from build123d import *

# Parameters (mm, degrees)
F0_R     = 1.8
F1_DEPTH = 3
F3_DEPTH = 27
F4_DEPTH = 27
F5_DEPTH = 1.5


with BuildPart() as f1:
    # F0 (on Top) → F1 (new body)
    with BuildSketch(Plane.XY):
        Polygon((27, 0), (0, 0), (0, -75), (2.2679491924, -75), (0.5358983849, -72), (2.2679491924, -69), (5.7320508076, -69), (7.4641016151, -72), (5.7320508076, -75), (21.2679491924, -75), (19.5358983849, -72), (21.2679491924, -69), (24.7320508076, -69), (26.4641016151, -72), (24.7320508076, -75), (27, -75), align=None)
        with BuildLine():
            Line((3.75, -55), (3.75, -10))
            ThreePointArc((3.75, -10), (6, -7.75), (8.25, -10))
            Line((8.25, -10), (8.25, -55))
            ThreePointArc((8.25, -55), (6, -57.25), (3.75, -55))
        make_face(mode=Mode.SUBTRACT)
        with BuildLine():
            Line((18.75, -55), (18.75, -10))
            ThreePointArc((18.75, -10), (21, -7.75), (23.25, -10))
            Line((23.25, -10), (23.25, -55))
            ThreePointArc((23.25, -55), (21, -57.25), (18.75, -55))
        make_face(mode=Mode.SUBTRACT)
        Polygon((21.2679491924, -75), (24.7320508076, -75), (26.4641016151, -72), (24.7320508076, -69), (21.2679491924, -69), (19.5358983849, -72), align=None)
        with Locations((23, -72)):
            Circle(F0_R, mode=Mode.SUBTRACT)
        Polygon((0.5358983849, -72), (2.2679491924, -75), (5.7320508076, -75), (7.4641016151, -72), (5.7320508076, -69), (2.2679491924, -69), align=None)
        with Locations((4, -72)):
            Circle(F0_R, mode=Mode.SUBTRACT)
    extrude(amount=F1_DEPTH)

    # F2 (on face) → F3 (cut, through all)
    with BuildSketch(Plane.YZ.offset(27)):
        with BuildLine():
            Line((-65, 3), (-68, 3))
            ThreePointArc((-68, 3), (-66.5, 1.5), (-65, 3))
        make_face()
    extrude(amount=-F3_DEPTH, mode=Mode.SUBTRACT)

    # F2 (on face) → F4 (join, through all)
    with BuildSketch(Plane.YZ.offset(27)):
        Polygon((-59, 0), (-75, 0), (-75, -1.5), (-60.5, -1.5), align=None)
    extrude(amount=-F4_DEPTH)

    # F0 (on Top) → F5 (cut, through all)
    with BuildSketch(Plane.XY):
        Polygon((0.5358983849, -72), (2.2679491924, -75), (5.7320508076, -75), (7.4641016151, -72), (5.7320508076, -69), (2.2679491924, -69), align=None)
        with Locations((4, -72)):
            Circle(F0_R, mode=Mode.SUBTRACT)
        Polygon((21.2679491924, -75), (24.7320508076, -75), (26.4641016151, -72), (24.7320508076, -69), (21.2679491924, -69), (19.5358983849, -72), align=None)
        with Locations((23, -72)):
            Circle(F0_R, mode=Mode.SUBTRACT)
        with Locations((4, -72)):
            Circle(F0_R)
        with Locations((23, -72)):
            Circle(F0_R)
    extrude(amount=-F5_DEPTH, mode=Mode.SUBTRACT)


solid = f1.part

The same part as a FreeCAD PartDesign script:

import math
import FreeCAD as App
import Part
import Sketcher
from FreeCAD import Vector
Q = App.Units.Quantity


def add_polygon(sketch, points):
    """Adds a closed chain of lines whose ends are joined by coincident constraints."""
    first, n = sketch.GeometryCount, len(points)
    for a, b in zip(points, points[1:] + points[:1]):
        sketch.addGeometry(Part.LineSegment(App.Vector(*a, 0), App.Vector(*b, 0)), False)
    for i in range(n):
        sketch.addConstraint(Sketcher.Constraint("Coincident", first + i, 2, first + (i + 1) % n, 1))

doc = App.newDocument("Part")
body = doc.addObject("PartDesign::Body", "Body")

sketch1 = doc.addObject("Sketcher::SketchObject", "Sketch")
body.addObject(sketch1)
sketch1.AttachmentSupport = (doc.XY_Plane, [""])
sketch1.MapMode = "FlatFace"
add_polygon(sketch1, [(27, 0), (0, 0), (0, -75), (27, -75)])
sketch1.addGeometry(Part.Circle(Vector(4, -72, 0), Vector(0, 0, 1), 1.8), False)
sketch1.addGeometry(Part.Circle(Vector(23, -72, 0), Vector(0, 0, 1), 1.8), False)
sketch1.addGeometry(Part.ArcOfCircle(Part.Circle(Vector(6, -55, 0), Vector(0, 0, 1), 2.25), math.radians(180), math.radians(360)), False)
sketch1.addGeometry(Part.LineSegment(Vector(3.75, -55, 0), Vector(3.75, -10, 0)), False)
sketch1.addGeometry(Part.ArcOfCircle(Part.Circle(Vector(6, -10, 0), Vector(0, 0, 1), 2.25), math.radians(0), math.radians(180)), False)
sketch1.addGeometry(Part.LineSegment(Vector(8.25, -10, 0), Vector(8.25, -55, 0)), False)
sketch1.addGeometry(Part.ArcOfCircle(Part.Circle(Vector(21, -55, 0), Vector(0, 0, 1), 2.25), math.radians(180), math.radians(360)), False)
sketch1.addGeometry(Part.LineSegment(Vector(18.75, -55, 0), Vector(18.75, -10, 0)), False)
sketch1.addGeometry(Part.ArcOfCircle(Part.Circle(Vector(21, -10, 0), Vector(0, 0, 1), 2.25), math.radians(0), math.radians(180)), False)
sketch1.addGeometry(Part.LineSegment(Vector(23.25, -10, 0), Vector(23.25, -55, 0)), False)
sketch1.addConstraint(Sketcher.Constraint("Tangent", 6, 1, 7, 1))
sketch1.addConstraint(Sketcher.Constraint("Tangent", 7, 2, 8, 2))
sketch1.addConstraint(Sketcher.Constraint("Tangent", 8, 1, 9, 1))
sketch1.addConstraint(Sketcher.Constraint("Tangent", 9, 2, 6, 2))
sketch1.addConstraint(Sketcher.Constraint("Tangent", 10, 1, 11, 1))
sketch1.addConstraint(Sketcher.Constraint("Tangent", 11, 2, 12, 2))
sketch1.addConstraint(Sketcher.Constraint("Tangent", 12, 1, 13, 1))
sketch1.addConstraint(Sketcher.Constraint("Tangent", 13, 2, 10, 2))
sketch1.addConstraint(Sketcher.Constraint("Horizontal", 0))
sketch1.addConstraint(Sketcher.Constraint("Vertical", 1))
sketch1.addConstraint(Sketcher.Constraint("Horizontal", 2))
sketch1.addConstraint(Sketcher.Constraint("Vertical", 3))
sketch1.addConstraint(Sketcher.Constraint("Vertical", 7))
sketch1.addConstraint(Sketcher.Constraint("Vertical", 9))
sketch1.addConstraint(Sketcher.Constraint("Vertical", 11))
sketch1.addConstraint(Sketcher.Constraint("Vertical", 13))
sketch1.addConstraint(Sketcher.Constraint("Coincident", 0, 2, -1, 1))
sketch1.addConstraint(Sketcher.Constraint("Equal", 4, 5))
sketch1.addConstraint(Sketcher.Constraint("Equal", 8, 10))
sketch1.addConstraint(Sketcher.Constraint("Horizontal", 4, 3, 5, 3))
sketch1.addConstraint(Sketcher.Constraint("Horizontal", 6, 3, 10, 3))
sketch1.addConstraint(Sketcher.Constraint("Horizontal", 8, 3, 12, 3))
sketch1.addConstraint(Sketcher.Constraint("Diameter", 4, 3.6))
sketch1.addConstraint(Sketcher.Constraint("DistanceX", 0, 2, 0, 1, 27.0))
sketch1.addConstraint(Sketcher.Constraint("DistanceY", 1, 2, 1, 1, 75.0))
sketch1.addConstraint(Sketcher.Constraint("DistanceY", 7, 1, 7, 2, 45.0))
sketch1.addConstraint(Sketcher.Constraint("Radius", 6, 2.25))
sketch1.addConstraint(Sketcher.Constraint("DistanceX", -1, 1, 4, 3, 4.0))
sketch1.addConstraint(Sketcher.Constraint("DistanceY", 4, 3, -1, 1, 72.0))
sketch1.addConstraint(Sketcher.Constraint("DistanceX", -1, 1, 5, 3, 23.0))
sketch1.addConstraint(Sketcher.Constraint("DistanceX", -1, 1, 6, 3, 6.0))
sketch1.addConstraint(Sketcher.Constraint("DistanceY", 6, 3, -1, 1, 55.0))
sketch1.addConstraint(Sketcher.Constraint("DistanceX", -1, 1, 10, 3, 21.0))
pad1 = doc.addObject("PartDesign::Pad", "Pad")
body.addObject(pad1)
pad1.Profile = sketch1
pad1.Length = 3

sketch2 = doc.addObject("Sketcher::SketchObject", "Sketch001")
body.addObject(sketch2)
sketch2.AttachmentSupport = (doc.YZ_Plane, [""])
sketch2.MapMode = "FlatFace"
sketch2.AttachmentOffset = App.Placement(Vector(0, 0, 27), App.Rotation())
sketch2.addGeometry(Part.LineSegment(Vector(-65, 3, 0), Vector(-68, 3, 0)), False)
sketch2.addGeometry(Part.ArcOfCircle(Part.Circle(Vector(-66.5, 3, 0), Vector(0, 0, 1), 1.5), math.radians(180), math.radians(360)), False)
sketch2.addConstraint(Sketcher.Constraint("Coincident", 0, 1, 1, 2))
sketch2.addConstraint(Sketcher.Constraint("Coincident", 1, 1, 0, 2))
sketch2.addConstraint(Sketcher.Constraint("Horizontal", 0))
sketch2.addConstraint(Sketcher.Constraint("Horizontal", 1, 3, 0, 1))
sketch2.addConstraint(Sketcher.Constraint("Radius", 1, 1.5))
sketch2.addConstraint(Sketcher.Constraint("DistanceY", -1, 1, 1, 3, 3.0))
sketch2.addConstraint(Sketcher.Constraint("DistanceX", 0, 1, -1, 1, 65.0))
pocket1 = doc.addObject("PartDesign::Pocket", "Pocket")
body.addObject(pocket1)
pocket1.Profile = sketch2
pocket1.Type = "ThroughAll"

sketch3 = doc.addObject("Sketcher::SketchObject", "Sketch002")
body.addObject(sketch3)
sketch3.AttachmentSupport = (doc.YZ_Plane, [""])
sketch3.MapMode = "FlatFace"
sketch3.AttachmentOffset = App.Placement(Vector(0, 0, 27), App.Rotation())
add_polygon(sketch3, [(-59, 0), (-75, 0), (-75, -1.5), (-60.5, -1.5)])
sketch3.addConstraint(Sketcher.Constraint("Horizontal", 0))
sketch3.addConstraint(Sketcher.Constraint("Vertical", 1))
sketch3.addConstraint(Sketcher.Constraint("Horizontal", 2))
sketch3.addConstraint(Sketcher.Constraint("PointOnObject", 0, 2, -1))
sketch3.addConstraint(Sketcher.Constraint("DistanceX", 0, 2, 0, 1, 16.0))
sketch3.addConstraint(Sketcher.Constraint("Angle", 3, Q("45 deg")))
sketch3.addConstraint(Sketcher.Constraint("DistanceX", 2, 1, 2, 2, 14.5))
sketch3.addConstraint(Sketcher.Constraint("DistanceX", 0, 2, -1, 1, 75.0))
pad2 = doc.addObject("PartDesign::Pad", "Pad001")
body.addObject(pad2)
pad2.Profile = sketch3
pad2.Length = 27
pad2.Reversed = True

sketch4 = doc.addObject("Sketcher::SketchObject", "Sketch003")
body.addObject(sketch4)
sketch4.AttachmentSupport = (doc.XY_Plane, [""])
sketch4.MapMode = "FlatFace"
add_polygon(sketch4, [(0.535898, -72), (2.267949, -75), (5.732051, -75), (7.464102, -72), (5.732051, -69), (2.267949, -69)])
add_polygon(sketch4, [(21.267949, -75), (24.732051, -75), (26.464102, -72), (24.732051, -69), (21.267949, -69), (19.535898, -72)])
sketch4.addConstraint(Sketcher.Constraint("Horizontal", 1))
sketch4.addConstraint(Sketcher.Constraint("Horizontal", 4))
sketch4.addConstraint(Sketcher.Constraint("Horizontal", 6))
sketch4.addConstraint(Sketcher.Constraint("Horizontal", 9))
sketch4.addConstraint(Sketcher.Constraint("Parallel", 0, 3))
sketch4.addConstraint(Sketcher.Constraint("Parallel", 2, 5))
sketch4.addConstraint(Sketcher.Constraint("Parallel", 5, 7))
sketch4.addConstraint(Sketcher.Constraint("Parallel", 3, 8))
sketch4.addConstraint(Sketcher.Constraint("Parallel", 7, 10))
sketch4.addConstraint(Sketcher.Constraint("Parallel", 8, 11))
sketch4.addConstraint(Sketcher.Constraint("Horizontal", 2, 2, 5, 2))
sketch4.addConstraint(Sketcher.Constraint("Horizontal", 1, 2, 6, 2))
sketch4.addConstraint(Sketcher.Constraint("Horizontal", 5, 2, 7, 2))
sketch4.addConstraint(Sketcher.Constraint("Horizontal", 4, 2, 8, 2))
sketch4.addConstraint(Sketcher.Constraint("Horizontal", 7, 2, 10, 2))
sketch4.addConstraint(Sketcher.Constraint("Vertical", 1, 2, 3, 2))
sketch4.addConstraint(Sketcher.Constraint("Vertical", 0, 2, 4, 2))
sketch4.addConstraint(Sketcher.Constraint("Equal", 4, 6))
sketch4.addConstraint(Sketcher.Constraint("Angle", 0, Q("-60 deg")))
sketch4.addConstraint(Sketcher.Constraint("DistanceY", 0, 2, -1, 1, 75.0))
sketch4.addConstraint(Sketcher.Constraint("DistanceY", 2, 2, -1, 1, 72.0))
sketch4.addConstraint(Sketcher.Constraint("DistanceX", 1, 2, 6, 2, 19.0))
sketch4.addConstraint(Sketcher.Constraint("DistanceX", 1, 1, 1, 2, 3.464102))
sketch4.addConstraint(Sketcher.Constraint("DistanceX", -1, 1, 2, 2, 7.464102))
pocket2 = doc.addObject("PartDesign::Pocket", "Pocket001")
body.addObject(pocket2)
pocket2.Profile = sketch4
pocket2.Type = "ThroughAll"

doc.recompute()
